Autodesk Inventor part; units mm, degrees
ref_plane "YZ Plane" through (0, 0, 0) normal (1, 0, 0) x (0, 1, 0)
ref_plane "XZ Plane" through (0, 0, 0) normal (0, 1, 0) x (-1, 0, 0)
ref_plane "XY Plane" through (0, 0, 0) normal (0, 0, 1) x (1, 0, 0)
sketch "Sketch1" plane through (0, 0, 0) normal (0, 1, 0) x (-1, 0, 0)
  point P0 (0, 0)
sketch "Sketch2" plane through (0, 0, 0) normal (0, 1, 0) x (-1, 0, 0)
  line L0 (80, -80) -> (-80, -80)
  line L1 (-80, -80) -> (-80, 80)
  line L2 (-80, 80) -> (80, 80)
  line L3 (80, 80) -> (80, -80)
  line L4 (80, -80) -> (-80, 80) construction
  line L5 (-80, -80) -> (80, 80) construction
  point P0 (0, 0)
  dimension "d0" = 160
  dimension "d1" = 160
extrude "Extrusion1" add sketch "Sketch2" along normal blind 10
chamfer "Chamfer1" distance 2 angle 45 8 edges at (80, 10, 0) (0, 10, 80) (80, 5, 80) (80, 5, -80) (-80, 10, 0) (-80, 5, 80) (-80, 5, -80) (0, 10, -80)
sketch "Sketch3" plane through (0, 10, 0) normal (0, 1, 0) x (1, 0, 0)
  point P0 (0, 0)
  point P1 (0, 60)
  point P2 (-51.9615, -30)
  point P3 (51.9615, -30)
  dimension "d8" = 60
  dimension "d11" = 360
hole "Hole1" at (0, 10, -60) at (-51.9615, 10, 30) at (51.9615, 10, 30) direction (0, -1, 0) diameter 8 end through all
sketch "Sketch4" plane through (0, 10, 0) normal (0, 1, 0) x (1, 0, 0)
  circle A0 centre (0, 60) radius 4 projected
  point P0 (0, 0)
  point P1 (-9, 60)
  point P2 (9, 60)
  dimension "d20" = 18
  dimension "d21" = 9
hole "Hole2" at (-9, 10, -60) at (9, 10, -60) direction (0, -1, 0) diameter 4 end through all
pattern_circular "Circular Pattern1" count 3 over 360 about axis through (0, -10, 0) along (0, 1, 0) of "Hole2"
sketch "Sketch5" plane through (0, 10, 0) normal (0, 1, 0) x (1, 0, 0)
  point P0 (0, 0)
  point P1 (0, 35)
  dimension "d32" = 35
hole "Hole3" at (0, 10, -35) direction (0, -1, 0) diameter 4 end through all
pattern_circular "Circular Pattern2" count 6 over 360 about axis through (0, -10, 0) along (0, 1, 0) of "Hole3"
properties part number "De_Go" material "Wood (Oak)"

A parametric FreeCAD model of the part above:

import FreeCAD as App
import Part
import Sketcher
from FreeCAD import Vector


def edges_at(feature, points):
    """Names of the edges that pass closest to the given points."""
    edges = feature.Shape.Edges
    near = lambda p: min(range(len(edges)), key=lambda i: edges[i].distToShape(Part.Vertex(*p))[0])
    return sorted({f"Edge{near(p) + 1}" for p in points})


def add_polygon(sketch, points):
    """Adds a closed chain of lines whose ends are joined by coincident constraints."""
    first, n = sketch.GeometryCount, len(points)
    for a, b in zip(points, points[1:] + points[:1]):
        sketch.addGeometry(Part.LineSegment(App.Vector(*a, 0), App.Vector(*b, 0)), False)
    for i in range(n):
        sketch.addConstraint(Sketcher.Constraint("Coincident", first + i, 2, first + (i + 1) % n, 1))

doc = App.newDocument("Part")
body = doc.addObject("PartDesign::Body", "Body")

# Sketch on XZ plane
sketch1 = body.newObject("Sketcher::SketchObject", "Sketch")
sketch1.AttachmentSupport = (doc.getObject("XZ_Plane"), [""])
sketch1.MapMode = "FlatFace"
add_polygon(sketch1, [(80, -80), (-80, -80), (-80, 80), (80, 80)])  # lines 0-3
sketch1.addConstraint([
    Sketcher.Constraint("Horizontal", 0),
    Sketcher.Constraint("Vertical", 1),
    Sketcher.Constraint("Horizontal", 2),
    Sketcher.Constraint("Vertical", 3),
    Sketcher.Constraint("Symmetric", 0, 2, 2, 2, -1, 1),
    Sketcher.Constraint("Equal", 2, 1),
    Sketcher.Constraint("DistanceX", 0, 2, 0, 1, 160.0),
])
pad1 = body.newObject("PartDesign::Pad", "Pad")
pad1.Profile = sketch1
pad1.Length = 10
pad1.Reversed = True
doc.recompute()

chamfer = body.newObject("PartDesign::Chamfer", "Chamfer")
chamfer.Base = (pad1, edges_at(pad1, [
    (80, 10, 0),
    (0, 10, 80),
    (80, 5, 80),
    (80, 5, -80),
    (-80, 10, 0),
    (-80, 5, 80),
    (-80, 5, -80),
    (0, 10, -80),
]))
chamfer.Size = 2

# Sketch on XZ plane
sketch2 = body.newObject("Sketcher::SketchObject", "Sketch001")
sketch2.AttachmentSupport = (doc.getObject("XZ_Plane"), [""])
sketch2.MapMode = "FlatFace"
sketch2.AttachmentOffset = App.Placement(Vector(0, 0, -10), App.Rotation())
sketch2.addGeometry([
    Part.Circle(Vector(0, -60, 0), Vector(0, 0, 1), 4),
    Part.Circle(Vector(-52, 30, 0), Vector(0, 0, 1), 4),
    Part.Circle(Vector(52, 30, 0), Vector(0, 0, 1), 4),
], False)
sketch2.addConstraint([
    Sketcher.Constraint("Equal", 0, 1),
    Sketcher.Constraint("Equal", 1, 2),
    Sketcher.Constraint("Symmetric", 1, 3, 2, 3, -2),
    Sketcher.Constraint("PointOnObject", 0, 3, -2),
    Sketcher.Constraint("Diameter", 0, 8.0),
    Sketcher.Constraint("DistanceY", 0, 3, -1, 1, 60.0),
    Sketcher.Constraint("DistanceY", -1, 1, 1, 3, 30.0),
    Sketcher.Constraint("DistanceX", 1, 3, 2, 3, 103.923),
])
doc.recompute()
hole = body.newObject("PartDesign::Hole", "Hole")
hole.Profile = sketch2
hole.ThreadType = "None"
hole.Diameter = 8
hole.DepthType = "ThroughAll"
hole.Reversed = True

# Sketch on XZ plane
sketch3 = body.newObject("Sketcher::SketchObject", "Sketch002")
sketch3.AttachmentSupport = (doc.getObject("XZ_Plane"), [""])
sketch3.MapMode = "FlatFace"
sketch3.AttachmentOffset = App.Placement(Vector(0, 0, -10), App.Rotation())
sketch3.addGeometry([
    Part.Circle(Vector(-9, -60, 0), Vector(0, 0, 1), 2),
    Part.Circle(Vector(9, -60, 0), Vector(0, 0, 1), 2),
], False)
sketch3.addConstraint([
    Sketcher.Constraint("Equal", 0, 1),
    Sketcher.Constraint("Symmetric", 0, 3, 1, 3, -2),
    Sketcher.Constraint("Diameter", 0, 4.0),
    Sketcher.Constraint("DistanceX", 0, 3, -1, 1, 9.0),
    Sketcher.Constraint("DistanceY", 0, 3, -1, 1, 60.0),
])
doc.recompute()
hole2 = body.newObject("PartDesign::Hole", "Hole001")
hole2.Profile = sketch3
hole2.ThreadType = "None"
hole2.Diameter = 4
hole2.DepthType = "ThroughAll"
hole2.Reversed = True
doc.recompute()

polarpattern = body.newObject("PartDesign::PolarPattern", "PolarPattern")
polarpattern.Originals = [hole2]
polarpattern.Axis = (doc.getObject("Y_Axis"), [""])
polarpattern.Angle = 360
polarpattern.Occurrences = 3
body.Tip = polarpattern

# Sketch on XZ plane
sketch4 = body.newObject("Sketcher::SketchObject", "Sketch003")
sketch4.AttachmentSupport = (doc.getObject("XZ_Plane"), [""])
sketch4.MapMode = "FlatFace"
sketch4.AttachmentOffset = App.Placement(Vector(0, 0, -10), App.Rotation())
sketch4.addGeometry(Part.Circle(Vector(0, -35, 0), Vector(0, 0, 1), 2), False)
sketch4.addConstraint([
    Sketcher.Constraint("PointOnObject", 0, 3, -2),
    Sketcher.Constraint("Diameter", 0, 4.0),
    Sketcher.Constraint("DistanceY", 0, 3, -1, 1, 35.0),
])
doc.recompute()
hole3 = body.newObject("PartDesign::Hole", "Hole002")
hole3.Profile = sketch4
hole3.ThreadType = "None"
hole3.Diameter = 4
hole3.DepthType = "ThroughAll"
hole3.Reversed = True
doc.recompute()

polarpattern2 = body.newObject("PartDesign::PolarPattern", "PolarPattern001")
polarpattern2.Originals = [hole3]
polarpattern2.Axis = (doc.getObject("Y_Axis"), [""])
polarpattern2.Angle = 360
polarpattern2.Occurrences = 6
body.Tip = polarpattern2

doc.recompute()
